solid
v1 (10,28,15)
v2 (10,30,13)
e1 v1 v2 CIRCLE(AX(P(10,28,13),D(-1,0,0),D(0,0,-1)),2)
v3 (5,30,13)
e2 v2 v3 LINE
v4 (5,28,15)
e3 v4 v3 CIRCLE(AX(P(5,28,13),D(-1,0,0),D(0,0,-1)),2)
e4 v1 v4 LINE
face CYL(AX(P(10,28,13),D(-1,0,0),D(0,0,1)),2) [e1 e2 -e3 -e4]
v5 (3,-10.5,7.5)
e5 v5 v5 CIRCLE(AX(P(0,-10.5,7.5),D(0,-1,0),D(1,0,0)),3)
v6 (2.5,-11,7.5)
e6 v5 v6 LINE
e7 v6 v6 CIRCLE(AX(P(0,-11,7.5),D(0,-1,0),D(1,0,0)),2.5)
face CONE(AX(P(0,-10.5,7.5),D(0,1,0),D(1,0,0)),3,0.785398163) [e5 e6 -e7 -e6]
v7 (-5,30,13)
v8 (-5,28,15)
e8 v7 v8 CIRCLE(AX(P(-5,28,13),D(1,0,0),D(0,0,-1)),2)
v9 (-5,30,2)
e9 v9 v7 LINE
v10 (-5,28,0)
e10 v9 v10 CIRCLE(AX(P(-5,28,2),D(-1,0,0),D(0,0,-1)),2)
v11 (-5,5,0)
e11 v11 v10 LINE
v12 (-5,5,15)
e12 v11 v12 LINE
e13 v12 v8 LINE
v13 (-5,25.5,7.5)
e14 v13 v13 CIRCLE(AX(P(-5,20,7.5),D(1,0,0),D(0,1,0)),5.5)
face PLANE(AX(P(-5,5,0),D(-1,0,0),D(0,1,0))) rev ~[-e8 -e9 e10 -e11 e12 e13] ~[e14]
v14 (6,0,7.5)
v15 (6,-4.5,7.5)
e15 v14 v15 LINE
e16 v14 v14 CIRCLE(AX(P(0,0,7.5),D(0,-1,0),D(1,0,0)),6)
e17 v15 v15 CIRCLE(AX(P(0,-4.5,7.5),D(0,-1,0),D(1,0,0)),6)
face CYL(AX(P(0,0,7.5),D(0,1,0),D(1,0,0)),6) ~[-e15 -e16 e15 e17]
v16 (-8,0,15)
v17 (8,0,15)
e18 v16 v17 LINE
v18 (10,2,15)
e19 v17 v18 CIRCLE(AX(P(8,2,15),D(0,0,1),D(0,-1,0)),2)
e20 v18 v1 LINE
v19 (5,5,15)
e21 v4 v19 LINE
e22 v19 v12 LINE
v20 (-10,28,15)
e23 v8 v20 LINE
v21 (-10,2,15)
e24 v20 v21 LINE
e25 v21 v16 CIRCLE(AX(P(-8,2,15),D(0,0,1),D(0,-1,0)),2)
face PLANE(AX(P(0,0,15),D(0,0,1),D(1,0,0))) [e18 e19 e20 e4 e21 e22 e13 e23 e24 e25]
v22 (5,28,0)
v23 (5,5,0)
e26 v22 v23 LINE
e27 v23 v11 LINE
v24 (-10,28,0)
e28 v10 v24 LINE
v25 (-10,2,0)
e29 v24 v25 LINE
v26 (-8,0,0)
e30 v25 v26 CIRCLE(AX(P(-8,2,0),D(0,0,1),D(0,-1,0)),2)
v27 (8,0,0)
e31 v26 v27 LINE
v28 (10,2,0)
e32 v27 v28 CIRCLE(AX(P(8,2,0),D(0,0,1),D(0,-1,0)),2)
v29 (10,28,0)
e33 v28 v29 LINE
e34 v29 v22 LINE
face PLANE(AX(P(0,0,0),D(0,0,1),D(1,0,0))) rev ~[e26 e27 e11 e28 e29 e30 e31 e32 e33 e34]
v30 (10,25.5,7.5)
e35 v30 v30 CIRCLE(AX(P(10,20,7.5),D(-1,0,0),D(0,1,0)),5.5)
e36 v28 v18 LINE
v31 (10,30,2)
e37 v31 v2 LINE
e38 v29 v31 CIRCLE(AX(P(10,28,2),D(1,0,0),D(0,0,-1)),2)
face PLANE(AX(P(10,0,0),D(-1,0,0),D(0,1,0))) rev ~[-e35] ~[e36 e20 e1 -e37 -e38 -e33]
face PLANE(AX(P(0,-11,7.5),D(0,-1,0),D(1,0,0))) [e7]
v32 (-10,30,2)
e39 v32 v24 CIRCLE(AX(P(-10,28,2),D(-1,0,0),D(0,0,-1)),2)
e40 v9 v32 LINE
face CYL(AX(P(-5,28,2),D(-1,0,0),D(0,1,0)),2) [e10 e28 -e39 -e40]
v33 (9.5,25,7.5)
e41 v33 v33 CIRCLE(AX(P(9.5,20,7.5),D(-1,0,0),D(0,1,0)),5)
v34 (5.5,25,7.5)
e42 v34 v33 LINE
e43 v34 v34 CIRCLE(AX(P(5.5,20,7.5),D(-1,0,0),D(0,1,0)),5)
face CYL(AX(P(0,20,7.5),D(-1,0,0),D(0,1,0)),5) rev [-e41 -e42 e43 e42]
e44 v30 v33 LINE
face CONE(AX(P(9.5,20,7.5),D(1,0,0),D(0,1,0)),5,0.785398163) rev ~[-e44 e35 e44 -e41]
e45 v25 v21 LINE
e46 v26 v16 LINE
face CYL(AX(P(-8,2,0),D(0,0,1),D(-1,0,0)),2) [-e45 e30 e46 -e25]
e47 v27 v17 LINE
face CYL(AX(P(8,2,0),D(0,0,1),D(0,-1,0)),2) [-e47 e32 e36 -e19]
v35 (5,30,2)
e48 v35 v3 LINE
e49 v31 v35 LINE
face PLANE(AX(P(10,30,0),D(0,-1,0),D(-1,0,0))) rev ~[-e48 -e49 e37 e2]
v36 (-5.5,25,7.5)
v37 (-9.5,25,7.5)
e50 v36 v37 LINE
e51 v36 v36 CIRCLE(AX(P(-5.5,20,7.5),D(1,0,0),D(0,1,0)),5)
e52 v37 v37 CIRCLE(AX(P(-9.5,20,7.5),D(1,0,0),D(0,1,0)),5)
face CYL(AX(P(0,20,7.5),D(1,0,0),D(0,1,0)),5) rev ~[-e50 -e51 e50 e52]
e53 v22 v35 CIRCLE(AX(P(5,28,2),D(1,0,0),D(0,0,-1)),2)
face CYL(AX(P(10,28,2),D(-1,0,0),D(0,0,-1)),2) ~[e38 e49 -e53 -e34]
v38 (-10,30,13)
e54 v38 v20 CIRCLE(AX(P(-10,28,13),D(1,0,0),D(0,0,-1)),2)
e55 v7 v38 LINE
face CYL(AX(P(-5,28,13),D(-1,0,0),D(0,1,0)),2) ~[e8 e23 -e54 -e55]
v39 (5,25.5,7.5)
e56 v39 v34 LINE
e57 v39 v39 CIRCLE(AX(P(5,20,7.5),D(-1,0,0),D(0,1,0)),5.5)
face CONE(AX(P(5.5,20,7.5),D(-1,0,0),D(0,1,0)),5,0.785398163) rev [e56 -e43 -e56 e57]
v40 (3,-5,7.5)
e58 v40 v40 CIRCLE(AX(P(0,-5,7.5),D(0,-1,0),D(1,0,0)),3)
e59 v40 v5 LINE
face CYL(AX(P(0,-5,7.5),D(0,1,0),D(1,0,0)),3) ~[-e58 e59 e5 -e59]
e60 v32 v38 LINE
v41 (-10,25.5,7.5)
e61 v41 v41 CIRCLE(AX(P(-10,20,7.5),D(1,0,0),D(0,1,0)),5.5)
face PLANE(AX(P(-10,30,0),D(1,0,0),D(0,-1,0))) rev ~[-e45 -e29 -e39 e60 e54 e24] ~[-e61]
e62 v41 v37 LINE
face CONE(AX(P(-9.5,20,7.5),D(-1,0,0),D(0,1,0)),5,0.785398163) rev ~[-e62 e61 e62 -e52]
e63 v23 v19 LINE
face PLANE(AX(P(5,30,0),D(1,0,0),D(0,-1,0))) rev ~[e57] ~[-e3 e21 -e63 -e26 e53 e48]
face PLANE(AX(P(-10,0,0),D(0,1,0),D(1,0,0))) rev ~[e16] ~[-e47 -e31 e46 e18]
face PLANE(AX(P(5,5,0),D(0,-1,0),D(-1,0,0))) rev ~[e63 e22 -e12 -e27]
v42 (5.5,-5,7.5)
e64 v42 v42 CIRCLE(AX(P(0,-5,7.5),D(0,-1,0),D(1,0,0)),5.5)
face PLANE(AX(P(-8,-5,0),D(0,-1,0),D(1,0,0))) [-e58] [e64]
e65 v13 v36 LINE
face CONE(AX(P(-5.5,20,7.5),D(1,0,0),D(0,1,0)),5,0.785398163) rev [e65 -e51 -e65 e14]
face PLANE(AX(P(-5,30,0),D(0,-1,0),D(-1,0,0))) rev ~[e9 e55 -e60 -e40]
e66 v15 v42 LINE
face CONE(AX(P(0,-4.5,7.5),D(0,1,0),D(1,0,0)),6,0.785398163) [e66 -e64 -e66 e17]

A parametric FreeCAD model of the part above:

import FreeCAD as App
import Part
import Sketcher


def edges_at(feature, points):
    """Names of the edges that pass closest to the given points."""
    edges = feature.Shape.Edges
    near = lambda p: min(range(len(edges)), key=lambda i: edges[i].distToShape(Part.Vertex(*p))[0])
    return sorted({f"Edge{near(p) + 1}" for p in points})

doc = App.newDocument("Part")
body = doc.addObject("PartDesign::Body", "Body")

sketch1 = doc.addObject("Sketcher::SketchObject", "Sketch")
body.addObject(sketch1)
sketch1.AttachmentSupport = (doc.XY_Plane, [""])
sketch1.MapMode = "FlatFace"
sketch1.addGeometry([
    Part.LineSegment(App.Vector(-5, 30, 0), App.Vector(-10, 30, 0)),
    Part.LineSegment(App.Vector(-10, 30, 0), App.Vector(-10, 0, 0)),
    Part.LineSegment(App.Vector(-10, 0, 0), App.Vector(10, 0, 0)),
    Part.LineSegment(App.Vector(10, 0, 0), App.Vector(10, 30, 0)),
    Part.LineSegment(App.Vector(10, 30, 0), App.Vector(5, 30, 0)),
    Part.LineSegment(App.Vector(5, 30, 0), App.Vector(5, 5, 0)),
    Part.LineSegment(App.Vector(5, 5, 0), App.Vector(-5, 5, 0)),
    Part.LineSegment(App.Vector(-5, 5, 0), App.Vector(-5, 30, 0)),
], False)
sketch1.addConstraint([
    Sketcher.Constraint("Coincident", 0, 2, 1, 1),
    Sketcher.Constraint("Coincident", 1, 2, 2, 1),
    Sketcher.Constraint("Coincident", 2, 2, 3, 1),
    Sketcher.Constraint("Coincident", 3, 2, 4, 1),
    Sketcher.Constraint("Coincident", 4, 2, 5, 1),
    Sketcher.Constraint("Coincident", 5, 2, 6, 1),
    Sketcher.Constraint("Coincident", 6, 2, 7, 1),
    Sketcher.Constraint("Coincident", 7, 2, 0, 1),
    Sketcher.Constraint("Horizontal", 0),
    Sketcher.Constraint("Vertical", 1),
    Sketcher.Constraint("Horizontal", 2),
    Sketcher.Constraint("Vertical", 3),
    Sketcher.Constraint("Horizontal", 4),
    Sketcher.Constraint("Vertical", 5),
    Sketcher.Constraint("Horizontal", 6),
    Sketcher.Constraint("Vertical", 7),
    Sketcher.Constraint("Symmetric", 1, 2, 2, 2, -1, 1),
    Sketcher.Constraint("Symmetric", 4, 2, 7, 2, -2),
    Sketcher.Constraint("DistanceX", 0, 2, 0, 1, 5.0),
    Sketcher.Constraint("DistanceX", 2, 1, 2, 2, 20.0),
    Sketcher.Constraint("DistanceY", 1, 2, 1, 1, 30.0),
    Sketcher.Constraint("DistanceY", -1, 1, 5, 2, 5.0),
])
pad1 = doc.addObject("PartDesign::Pad", "Pad")
body.addObject(pad1)
pad1.Profile = sketch1
pad1.Length = 15

sketch2 = doc.addObject("Sketcher::SketchObject", "Sketch001")
body.addObject(sketch2)
sketch2.AttachmentSupport = (doc.YZ_Plane, [""])
sketch2.MapMode = "FlatFace"
sketch2.addGeometry(Part.Circle(App.Vector(20, 7.5, 0), App.Vector(0, 0, 1), 5), False)
sketch2.addConstraint([
    Sketcher.Constraint("Diameter", 0, 10.0),
    Sketcher.Constraint("DistanceX", -1, 1, 0, 3, 20.0),
    Sketcher.Constraint("DistanceY", -1, 1, 0, 3, 7.5),
])
pocket1 = doc.addObject("PartDesign::Pocket", "Pocket")
body.addObject(pocket1)
pocket1.Profile = sketch2
pocket1.Type = "ThroughAll"
pocket1.Midplane = True
doc.recompute()

fillet = doc.addObject("PartDesign::Fillet", "Fillet")
body.addObject(fillet)
fillet.Base = (pocket1, edges_at(pocket1, [
    (-7.5, 30, 15),
    (-7.5, 30, 0),
    (7.5, 30, 15),
    (7.5, 30, 0),
    (10, 0, 7.5),
    (-10, 0, 7.5),
]))
fillet.Radius = 2

sketch3 = doc.addObject("Sketcher::SketchObject", "Sketch002")
body.addObject(sketch3)
sketch3.AttachmentSupport = (doc.XZ_Plane, [""])
sketch3.MapMode = "FlatFace"
sketch3.addGeometry(Part.Circle(App.Vector(0, 7.5, 0), App.Vector(0, 0, 1), 6), False)
sketch3.addConstraint([
    Sketcher.Constraint("PointOnObject", 0, 3, -2),
    Sketcher.Constraint("Diameter", 0, 12.0),
    Sketcher.Constraint("DistanceY", -1, 1, 0, 3, 7.5),
])
pad2 = doc.addObject("PartDesign::Pad", "Pad001")
body.addObject(pad2)
pad2.Profile = sketch3
pad2.Length = 5

sketch4 = doc.addObject("Sketcher::SketchObject", "Sketch003")
body.addObject(sketch4)
sketch4.AttachmentSupport = (doc.XZ_Plane, [""])
sketch4.MapMode = "FlatFace"
sketch4.AttachmentOffset = App.Placement(App.Vector(0, 0, 5), App.Rotation())
sketch4.addGeometry(Part.Circle(App.Vector(0, 7.5, 0), App.Vector(0, 0, 1), 3), False)
sketch4.addConstraint([
    Sketcher.Constraint("PointOnObject", 0, 3, -2),
    Sketcher.Constraint("Diameter", 0, 6.0),
    Sketcher.Constraint("DistanceY", -1, 1, 0, 3, 7.5),
])
pad3 = doc.addObject("PartDesign::Pad", "Pad002")
body.addObject(pad3)
pad3.Profile = sketch4
pad3.Length = 6
doc.recompute()

chamfer = doc.addObject("PartDesign::Chamfer", "Chamfer")
body.addObject(chamfer)
chamfer.Base = (pad3, edges_at(pad3, [
    (-5, 15, 7.5),
    (5, 15, 7.5),
    (-10, 15, 7.5),
    (10, 15, 7.5),
    (-3, -11, 7.5),
    (-6, -5, 7.5),
]))
chamfer.Size = 0.5

doc.recompute()
